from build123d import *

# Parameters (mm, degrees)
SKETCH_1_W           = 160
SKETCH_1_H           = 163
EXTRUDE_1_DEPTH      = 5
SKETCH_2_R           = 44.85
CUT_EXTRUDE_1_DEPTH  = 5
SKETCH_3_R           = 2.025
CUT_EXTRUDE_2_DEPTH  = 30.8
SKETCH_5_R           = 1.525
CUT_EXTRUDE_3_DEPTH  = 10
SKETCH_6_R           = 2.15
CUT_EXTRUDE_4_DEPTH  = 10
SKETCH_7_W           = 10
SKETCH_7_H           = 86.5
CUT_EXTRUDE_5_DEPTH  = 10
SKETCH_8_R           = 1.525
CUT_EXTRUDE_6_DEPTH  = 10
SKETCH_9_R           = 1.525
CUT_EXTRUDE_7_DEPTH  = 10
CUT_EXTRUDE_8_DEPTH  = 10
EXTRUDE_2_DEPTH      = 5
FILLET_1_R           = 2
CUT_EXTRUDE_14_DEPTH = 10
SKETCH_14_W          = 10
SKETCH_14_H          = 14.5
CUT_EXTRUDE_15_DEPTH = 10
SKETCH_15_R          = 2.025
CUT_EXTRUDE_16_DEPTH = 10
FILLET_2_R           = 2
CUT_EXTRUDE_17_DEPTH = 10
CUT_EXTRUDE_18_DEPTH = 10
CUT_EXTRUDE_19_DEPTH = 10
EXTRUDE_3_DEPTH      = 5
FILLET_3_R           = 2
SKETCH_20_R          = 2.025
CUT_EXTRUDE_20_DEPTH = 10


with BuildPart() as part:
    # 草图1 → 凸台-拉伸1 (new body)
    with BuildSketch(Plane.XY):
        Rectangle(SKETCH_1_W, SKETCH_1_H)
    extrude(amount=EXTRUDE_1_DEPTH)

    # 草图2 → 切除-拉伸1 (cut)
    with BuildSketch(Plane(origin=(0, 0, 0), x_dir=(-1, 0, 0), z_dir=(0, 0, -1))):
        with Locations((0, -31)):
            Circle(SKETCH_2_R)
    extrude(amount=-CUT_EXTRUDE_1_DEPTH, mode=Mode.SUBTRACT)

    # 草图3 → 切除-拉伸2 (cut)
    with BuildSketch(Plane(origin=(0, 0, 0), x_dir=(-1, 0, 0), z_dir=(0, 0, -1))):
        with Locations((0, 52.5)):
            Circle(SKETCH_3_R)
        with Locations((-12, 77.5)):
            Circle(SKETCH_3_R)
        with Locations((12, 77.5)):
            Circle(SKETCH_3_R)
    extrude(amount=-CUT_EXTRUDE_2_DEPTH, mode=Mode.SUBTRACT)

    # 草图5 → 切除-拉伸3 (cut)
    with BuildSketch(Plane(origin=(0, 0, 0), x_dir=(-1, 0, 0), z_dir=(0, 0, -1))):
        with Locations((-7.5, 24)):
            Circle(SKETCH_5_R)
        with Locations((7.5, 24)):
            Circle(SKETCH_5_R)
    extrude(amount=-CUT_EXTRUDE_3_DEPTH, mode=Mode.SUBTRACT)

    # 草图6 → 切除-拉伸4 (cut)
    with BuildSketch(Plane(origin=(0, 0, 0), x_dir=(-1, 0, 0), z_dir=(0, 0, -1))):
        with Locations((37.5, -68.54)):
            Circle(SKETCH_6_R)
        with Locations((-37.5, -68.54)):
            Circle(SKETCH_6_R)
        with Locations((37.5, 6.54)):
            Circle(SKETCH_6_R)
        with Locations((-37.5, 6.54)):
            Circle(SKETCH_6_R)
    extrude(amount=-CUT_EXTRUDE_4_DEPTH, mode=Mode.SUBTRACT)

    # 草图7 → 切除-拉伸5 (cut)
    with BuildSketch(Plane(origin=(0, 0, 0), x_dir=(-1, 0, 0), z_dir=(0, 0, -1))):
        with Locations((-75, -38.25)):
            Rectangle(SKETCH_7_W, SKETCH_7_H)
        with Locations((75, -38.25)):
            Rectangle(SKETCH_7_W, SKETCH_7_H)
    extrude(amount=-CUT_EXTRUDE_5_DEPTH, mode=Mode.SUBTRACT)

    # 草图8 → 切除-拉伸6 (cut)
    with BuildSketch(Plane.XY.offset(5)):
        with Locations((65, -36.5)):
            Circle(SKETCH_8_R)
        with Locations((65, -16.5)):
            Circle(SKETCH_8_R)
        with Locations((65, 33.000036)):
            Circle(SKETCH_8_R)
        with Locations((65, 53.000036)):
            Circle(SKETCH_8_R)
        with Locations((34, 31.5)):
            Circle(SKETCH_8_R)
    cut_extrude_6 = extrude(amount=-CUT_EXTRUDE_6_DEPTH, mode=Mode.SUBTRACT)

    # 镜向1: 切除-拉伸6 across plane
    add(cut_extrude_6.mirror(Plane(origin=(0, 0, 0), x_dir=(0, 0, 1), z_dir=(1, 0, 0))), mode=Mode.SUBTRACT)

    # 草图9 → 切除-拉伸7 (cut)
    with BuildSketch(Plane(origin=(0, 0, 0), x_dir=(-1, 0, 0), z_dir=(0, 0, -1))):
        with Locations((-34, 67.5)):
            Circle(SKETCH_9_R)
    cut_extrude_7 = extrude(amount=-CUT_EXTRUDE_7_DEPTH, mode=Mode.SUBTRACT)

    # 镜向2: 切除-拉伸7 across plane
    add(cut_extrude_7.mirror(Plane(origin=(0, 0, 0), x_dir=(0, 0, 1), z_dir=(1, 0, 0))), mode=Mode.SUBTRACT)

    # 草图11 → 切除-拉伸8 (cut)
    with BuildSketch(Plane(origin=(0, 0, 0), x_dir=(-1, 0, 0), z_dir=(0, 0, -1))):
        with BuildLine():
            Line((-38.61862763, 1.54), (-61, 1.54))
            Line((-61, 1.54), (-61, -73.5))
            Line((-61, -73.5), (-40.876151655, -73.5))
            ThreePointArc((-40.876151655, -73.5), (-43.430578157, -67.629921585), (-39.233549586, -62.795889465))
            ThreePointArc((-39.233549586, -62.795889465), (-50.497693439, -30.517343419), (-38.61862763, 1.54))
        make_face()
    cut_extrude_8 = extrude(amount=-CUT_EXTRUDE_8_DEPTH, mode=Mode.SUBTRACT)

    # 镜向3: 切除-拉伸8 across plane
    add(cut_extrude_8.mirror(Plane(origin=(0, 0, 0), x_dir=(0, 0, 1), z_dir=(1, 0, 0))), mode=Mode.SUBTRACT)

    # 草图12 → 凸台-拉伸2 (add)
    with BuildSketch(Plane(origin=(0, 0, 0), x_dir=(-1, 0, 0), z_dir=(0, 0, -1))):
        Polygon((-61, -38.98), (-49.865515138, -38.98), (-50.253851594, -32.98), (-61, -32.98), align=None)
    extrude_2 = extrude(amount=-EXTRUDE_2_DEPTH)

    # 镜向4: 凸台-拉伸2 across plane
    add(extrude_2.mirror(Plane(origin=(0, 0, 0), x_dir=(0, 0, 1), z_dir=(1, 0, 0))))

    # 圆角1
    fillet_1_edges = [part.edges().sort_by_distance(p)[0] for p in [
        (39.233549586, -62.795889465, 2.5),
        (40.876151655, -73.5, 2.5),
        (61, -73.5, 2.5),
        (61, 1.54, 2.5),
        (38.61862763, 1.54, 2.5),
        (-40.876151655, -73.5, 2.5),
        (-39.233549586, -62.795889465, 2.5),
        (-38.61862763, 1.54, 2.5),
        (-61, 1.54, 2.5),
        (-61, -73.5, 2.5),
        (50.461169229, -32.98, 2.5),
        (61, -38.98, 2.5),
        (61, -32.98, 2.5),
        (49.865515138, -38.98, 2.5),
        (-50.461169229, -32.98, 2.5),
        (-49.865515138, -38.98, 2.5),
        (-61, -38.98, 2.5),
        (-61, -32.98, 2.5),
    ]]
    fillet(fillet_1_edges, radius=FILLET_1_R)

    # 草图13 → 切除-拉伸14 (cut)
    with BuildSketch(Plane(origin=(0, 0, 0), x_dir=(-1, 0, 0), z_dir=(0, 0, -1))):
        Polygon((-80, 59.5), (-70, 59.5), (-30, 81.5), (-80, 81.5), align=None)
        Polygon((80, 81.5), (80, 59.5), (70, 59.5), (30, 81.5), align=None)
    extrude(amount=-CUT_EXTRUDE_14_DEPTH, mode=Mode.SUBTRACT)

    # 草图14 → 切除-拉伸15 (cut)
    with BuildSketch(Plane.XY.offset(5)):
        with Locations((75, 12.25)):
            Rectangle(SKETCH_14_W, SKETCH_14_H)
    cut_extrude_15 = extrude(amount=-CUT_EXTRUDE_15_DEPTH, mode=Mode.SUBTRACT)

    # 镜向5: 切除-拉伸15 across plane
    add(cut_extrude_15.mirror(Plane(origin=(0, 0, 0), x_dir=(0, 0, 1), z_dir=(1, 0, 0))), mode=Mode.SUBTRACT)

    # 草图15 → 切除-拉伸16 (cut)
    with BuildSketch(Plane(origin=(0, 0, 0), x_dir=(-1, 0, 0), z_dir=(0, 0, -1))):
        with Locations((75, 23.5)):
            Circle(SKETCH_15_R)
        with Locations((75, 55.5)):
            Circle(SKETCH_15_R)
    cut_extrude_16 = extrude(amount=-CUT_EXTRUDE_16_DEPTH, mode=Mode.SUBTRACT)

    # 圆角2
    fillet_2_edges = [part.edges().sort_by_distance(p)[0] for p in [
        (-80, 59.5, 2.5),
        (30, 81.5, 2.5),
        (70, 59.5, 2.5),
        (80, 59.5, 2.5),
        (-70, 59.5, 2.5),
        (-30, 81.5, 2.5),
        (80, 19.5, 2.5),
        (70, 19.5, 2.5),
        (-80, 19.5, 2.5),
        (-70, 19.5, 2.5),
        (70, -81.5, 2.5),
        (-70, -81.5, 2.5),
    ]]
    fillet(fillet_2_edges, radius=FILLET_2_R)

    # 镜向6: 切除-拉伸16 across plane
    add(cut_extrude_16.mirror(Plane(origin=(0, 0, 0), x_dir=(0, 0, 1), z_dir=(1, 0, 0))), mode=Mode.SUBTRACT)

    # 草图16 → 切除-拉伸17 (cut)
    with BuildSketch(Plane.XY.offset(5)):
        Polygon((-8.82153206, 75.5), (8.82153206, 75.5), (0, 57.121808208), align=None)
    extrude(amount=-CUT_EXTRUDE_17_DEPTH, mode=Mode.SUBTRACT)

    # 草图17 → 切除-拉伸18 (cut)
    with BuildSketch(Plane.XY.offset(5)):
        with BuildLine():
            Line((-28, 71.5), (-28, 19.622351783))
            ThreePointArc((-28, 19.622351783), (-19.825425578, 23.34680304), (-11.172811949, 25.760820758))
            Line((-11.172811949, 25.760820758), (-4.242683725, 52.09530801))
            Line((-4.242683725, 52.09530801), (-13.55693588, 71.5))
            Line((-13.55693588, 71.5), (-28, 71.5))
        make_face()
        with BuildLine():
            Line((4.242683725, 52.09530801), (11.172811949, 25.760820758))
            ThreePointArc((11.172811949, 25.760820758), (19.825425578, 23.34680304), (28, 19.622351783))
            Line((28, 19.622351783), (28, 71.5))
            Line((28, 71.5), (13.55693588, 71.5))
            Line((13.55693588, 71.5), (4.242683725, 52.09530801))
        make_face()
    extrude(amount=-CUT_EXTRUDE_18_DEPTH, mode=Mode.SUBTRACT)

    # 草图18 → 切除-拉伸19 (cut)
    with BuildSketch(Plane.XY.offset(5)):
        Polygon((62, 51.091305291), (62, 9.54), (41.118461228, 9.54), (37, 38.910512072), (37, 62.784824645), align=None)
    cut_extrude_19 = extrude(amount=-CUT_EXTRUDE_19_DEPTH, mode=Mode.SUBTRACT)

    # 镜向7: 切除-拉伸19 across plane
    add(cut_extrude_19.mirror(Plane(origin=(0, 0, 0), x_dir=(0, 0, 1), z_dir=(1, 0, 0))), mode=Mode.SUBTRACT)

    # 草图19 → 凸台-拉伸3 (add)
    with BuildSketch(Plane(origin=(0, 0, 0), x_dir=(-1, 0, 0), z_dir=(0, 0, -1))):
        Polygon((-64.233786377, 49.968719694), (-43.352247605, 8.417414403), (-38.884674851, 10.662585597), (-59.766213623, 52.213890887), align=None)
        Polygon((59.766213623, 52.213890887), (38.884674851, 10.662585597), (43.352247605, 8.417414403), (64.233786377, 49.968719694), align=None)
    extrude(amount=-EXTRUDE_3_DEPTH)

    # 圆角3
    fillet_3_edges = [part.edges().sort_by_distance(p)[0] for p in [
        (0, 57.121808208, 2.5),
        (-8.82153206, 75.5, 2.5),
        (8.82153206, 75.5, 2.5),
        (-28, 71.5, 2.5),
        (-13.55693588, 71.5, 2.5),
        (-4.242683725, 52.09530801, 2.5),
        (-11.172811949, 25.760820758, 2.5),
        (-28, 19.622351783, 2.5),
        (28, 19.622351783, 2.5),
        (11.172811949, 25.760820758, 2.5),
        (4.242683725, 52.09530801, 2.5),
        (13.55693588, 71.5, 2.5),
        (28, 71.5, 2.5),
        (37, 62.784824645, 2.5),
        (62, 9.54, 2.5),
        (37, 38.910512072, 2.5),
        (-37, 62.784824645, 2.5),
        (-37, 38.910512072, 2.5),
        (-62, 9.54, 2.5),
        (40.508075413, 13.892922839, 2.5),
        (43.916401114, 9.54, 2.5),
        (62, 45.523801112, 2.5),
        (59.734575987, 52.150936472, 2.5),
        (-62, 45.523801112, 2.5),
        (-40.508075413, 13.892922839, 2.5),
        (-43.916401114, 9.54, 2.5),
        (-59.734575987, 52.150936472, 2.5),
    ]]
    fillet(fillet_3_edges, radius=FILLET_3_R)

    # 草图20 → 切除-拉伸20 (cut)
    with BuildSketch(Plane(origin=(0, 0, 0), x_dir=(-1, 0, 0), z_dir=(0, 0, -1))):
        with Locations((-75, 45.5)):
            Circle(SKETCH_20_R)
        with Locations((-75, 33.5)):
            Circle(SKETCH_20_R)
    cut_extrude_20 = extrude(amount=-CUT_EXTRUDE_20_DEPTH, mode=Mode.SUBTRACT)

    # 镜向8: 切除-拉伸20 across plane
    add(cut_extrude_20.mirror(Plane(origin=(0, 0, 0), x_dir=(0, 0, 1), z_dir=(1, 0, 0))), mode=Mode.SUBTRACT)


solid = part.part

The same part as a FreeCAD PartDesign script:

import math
import FreeCAD as App
import Part
import Sketcher
from FreeCAD import Vector
Q = App.Units.Quantity


def edges_at(feature, points):
    """Names of the edges that pass closest to the given points."""
    edges = feature.Shape.Edges
    near = lambda p: min(range(len(edges)), key=lambda i: edges[i].distToShape(Part.Vertex(*p))[0])
    return sorted({f"Edge{near(p) + 1}" for p in points})


def add_polygon(sketch, points):
    """Adds a closed chain of lines whose ends are joined by coincident constraints."""
    first, n = sketch.GeometryCount, len(points)
    for a, b in zip(points, points[1:] + points[:1]):
        sketch.addGeometry(Part.LineSegment(App.Vector(*a, 0), App.Vector(*b, 0)), False)
    for i in range(n):
        sketch.addConstraint(Sketcher.Constraint("Coincident", first + i, 2, first + (i + 1) % n, 1))

doc = App.newDocument("Part")
body = doc.addObject("PartDesign::Body", "Body")

# Sketch on XY plane
sketch1 = doc.addObject("Sketcher::SketchObject", "Sketch")
body.addObject(sketch1)
sketch1.AttachmentSupport = (doc.XY_Plane, [""])
sketch1.MapMode = "FlatFace"
add_polygon(sketch1, [(-80, 82), (-80, -82), (80, -82), (80, 82)])  # lines 0-3
sketch1.addConstraint(Sketcher.Constraint("Vertical", 0))
sketch1.addConstraint(Sketcher.Constraint("Horizontal", 1))
sketch1.addConstraint(Sketcher.Constraint("Vertical", 2))
sketch1.addConstraint(Sketcher.Constraint("Horizontal", 3))
sketch1.addConstraint(Sketcher.Constraint("Symmetric", 0, 2, 2, 2, -1, 1))
sketch1.addConstraint(Sketcher.Constraint("DistanceX", 1, 1, 1, 2, Q("160 mm")))
sketch1.addConstraint(Sketcher.Constraint("DistanceY", 0, 2, 0, 1, Q("163 mm")))
pad1 = doc.addObject("PartDesign::Pad", "Pad")
body.addObject(pad1)
pad1.Profile = sketch1
pad1.Length = 5

# Sketch on XY plane
sketch2 = doc.addObject("Sketcher::SketchObject", "Sketch001")
body.addObject(sketch2)
sketch2.AttachmentSupport = (doc.XY_Plane, [""])
sketch2.MapMode = "FlatFace"
sketch2.addGeometry(Part.Circle(Vector(0, -31, 0), Vector(0, 0, 1), 45), False)
sketch2.addConstraint(Sketcher.Constraint("PointOnObject", 0, 3, -2))
sketch2.addConstraint(Sketcher.Constraint("Diameter", 0, Q("89.7 mm")))
sketch2.addConstraint(Sketcher.Constraint("DistanceY", 0, 3, -1, 1, Q("31 mm")))
pocket1 = doc.addObject("PartDesign::Pocket", "Pocket")
body.addObject(pocket1)
pocket1.Profile = sketch2
pocket1.Length = 5
pocket1.Reversed = True

# Sketch on XY plane
sketch3 = doc.addObject("Sketcher::SketchObject", "Sketch002")
body.addObject(sketch3)
sketch3.AttachmentSupport = (doc.XY_Plane, [""])
sketch3.MapMode = "FlatFace"
sketch3.addGeometry(Part.Circle(Vector(0, 52.5, 0), Vector(0, 0, 1), 2), False)
sketch3.addGeometry(Part.Circle(Vector(12, 77.5, 0), Vector(0, 0, 1), 2), False)
sketch3.addGeometry(Part.Circle(Vector(-12, 77.5, 0), Vector(0, 0, 1), 2), False)
sketch3.addConstraint(Sketcher.Constraint("Equal", 0, 1))
sketch3.addConstraint(Sketcher.Constraint("Equal", 1, 2))
sketch3.addConstraint(Sketcher.Constraint("Symmetric", 1, 3, 2, 3, -2))
sketch3.addConstraint(Sketcher.Constraint("PointOnObject", 0, 3, -2))
sketch3.addConstraint(Sketcher.Constraint("Diameter", 0, Q("4.05 mm")))
sketch3.addConstraint(Sketcher.Constraint("DistanceX", -1, 1, 1, 3, Q("12 mm")))
sketch3.addConstraint(Sketcher.Constraint("DistanceY", 0, 3, 1, 3, Q("25 mm")))
sketch3.addConstraint(Sketcher.Constraint("DistanceY", -1, 1, 0, 3, Q("52.5 mm")))
pocket2 = doc.addObject("PartDesign::Pocket", "Pocket001")
body.addObject(pocket2)
pocket2.Profile = sketch3
pocket2.Length = 30.8
pocket2.Reversed = True

# Sketch on XY plane
sketch4 = doc.addObject("Sketcher::SketchObject", "Sketch003")
body.addObject(sketch4)
sketch4.AttachmentSupport = (doc.XY_Plane, [""])
sketch4.MapMode = "FlatFace"
sketch4.addGeometry(Part.Circle(Vector(7.5, 24, 0), Vector(0, 0, 1), 1.5), False)
sketch4.addGeometry(Part.Circle(Vector(-7.5, 24, 0), Vector(0, 0, 1), 1.5), False)
sketch4.addConstraint(Sketcher.Constraint("Equal", 0, 1))
sketch4.addConstraint(Sketcher.Constraint("Symmetric", 0, 3, 1, 3, -2))
sketch4.addConstraint(Sketcher.Constraint("Diameter", 0, Q("3.05 mm")))
sketch4.addConstraint(Sketcher.Constraint("DistanceY", -1, 1, 0, 3, Q("24 mm")))
sketch4.addConstraint(Sketcher.Constraint("DistanceX", 1, 3, 0, 3, Q("15 mm")))
pocket3 = doc.addObject("PartDesign::Pocket", "Pocket002")
body.addObject(pocket3)
pocket3.Profile = sketch4
pocket3.Length = 10
pocket3.Reversed = True

# Sketch on XY plane
sketch5 = doc.addObject("Sketcher::SketchObject", "Sketch004")
body.addObject(sketch5)
sketch5.AttachmentSupport = (doc.XY_Plane, [""])
sketch5.MapMode = "FlatFace"
sketch5.addGeometry(Part.Circle(Vector(-37.5, -68.5, 0), Vector(0, 0, 1), 2.1), False)
sketch5.addGeometry(Part.Circle(Vector(37.5, -68.5, 0), Vector(0, 0, 1), 2.1), False)
sketch5.addGeometry(Part.Circle(Vector(-37.5, 6.5, 0), Vector(0, 0, 1), 2.1), False)
sketch5.addGeometry(Part.Circle(Vector(37.5, 6.5, 0), Vector(0, 0, 1), 2.1), False)
sketch5.addConstraint(Sketcher.Constraint("Equal", 0, 1))
sketch5.addConstraint(Sketcher.Constraint("Equal", 1, 2))
sketch5.addConstraint(Sketcher.Constraint("Equal", 2, 3))
sketch5.addConstraint(Sketcher.Constraint("Symmetric", 0, 3, 1, 3, -2))
sketch5.addConstraint(Sketcher.Constraint("Symmetric", 2, 3, 3, 3, -2))
sketch5.addConstraint(Sketcher.Constraint("Vertical", 0, 3, 2, 3))
sketch5.addConstraint(Sketcher.Constraint("Diameter", 0, Q("4.3 mm")))
sketch5.addConstraint(Sketcher.Constraint("DistanceX", 0, 3, 1, 3, Q("75 mm")))
sketch5.addConstraint(Sketcher.Constraint("DistanceY", 0, 3, -1, 1, Q("68.54 mm")))
sketch5.addConstraint(Sketcher.Constraint("DistanceY", -1, 1, 2, 3, Q("6.54 mm")))
pocket4 = doc.addObject("PartDesign::Pocket", "Pocket003")
body.addObject(pocket4)
pocket4.Profile = sketch5
pocket4.Length = 10
pocket4.Reversed = True

# Sketch on XY plane
sketch6 = doc.addObject("Sketcher::SketchObject", "Sketch005")
body.addObject(sketch6)
sketch6.AttachmentSupport = (doc.XY_Plane, [""])
sketch6.MapMode = "FlatFace"
add_polygon(sketch6, [(80, 5), (80, -82), (70, -82), (70, 5)])  # lines 0-3
add_polygon(sketch6, [(-70, 5), (-70, -82), (-80, -82), (-80, 5)])  # lines 4-7
sketch6.addConstraint(Sketcher.Constraint("Vertical", 0))
sketch6.addConstraint(Sketcher.Constraint("Horizontal", 1))
sketch6.addConstraint(Sketcher.Constraint("Vertical", 2))
sketch6.addConstraint(Sketcher.Constraint("Horizontal", 3))
sketch6.addConstraint(Sketcher.Constraint("Vertical", 4))
sketch6.addConstraint(Sketcher.Constraint("Horizontal", 5))
sketch6.addConstraint(Sketcher.Constraint("Vertical", 6))
sketch6.addConstraint(Sketcher.Constraint("Horizontal", 7))
sketch6.addConstraint(Sketcher.Constraint("Symmetric", 1, 2, 4, 2, -2))
sketch6.addConstraint(Sketcher.Constraint("Symmetric", 3, 2, 6, 2, -2))
sketch6.addConstraint(Sketcher.Constraint("DistanceX", 1, 2, 1, 1, Q("10 mm")))
sketch6.addConstraint(Sketcher.Constraint("DistanceY", 0, 2, 0, 1, Q("86.5 mm")))
sketch6.addConstraint(Sketcher.Constraint("DistanceX", -1, 1, 0, 2, Q("80 mm")))
sketch6.addConstraint(Sketcher.Constraint("DistanceY", -1, 1, 2, 2, Q("5 mm")))
pocket5 = doc.addObject("PartDesign::Pocket", "Pocket004")
body.addObject(pocket5)
pocket5.Profile = sketch6
pocket5.Length = 10
pocket5.Reversed = True

# Sketch on XY plane
sketch7 = doc.addObject("Sketcher::SketchObject", "Sketch006")
body.addObject(sketch7)
sketch7.AttachmentSupport = (doc.XY_Plane, [""])
sketch7.MapMode = "FlatFace"
sketch7.AttachmentOffset = App.Placement(Vector(0, 0, 5), App.Rotation())
sketch7.addGeometry(Part.Circle(Vector(65, -36.5, 0), Vector(0, 0, 1), 1.525), False)
sketch7.addGeometry(Part.Circle(Vector(65, -16.5, 0), Vector(0, 0, 1), 1.525), False)
sketch7.addGeometry(Part.Circle(Vector(65, 33.000036, 0), Vector(0, 0, 1), 1.525), False)
sketch7.addGeometry(Part.Circle(Vector(65, 53.000036, 0), Vector(0, 0, 1), 1.525), False)
sketch7.addGeometry(Part.Circle(Vector(34, 31.5, 0), Vector(0, 0, 1), 1.525), False)
sketch7.addConstraint(Sketcher.Constraint("Equal", 0, 1))
sketch7.addConstraint(Sketcher.Constraint("Equal", 1, 2))
sketch7.addConstraint(Sketcher.Constraint("Equal", 2, 3))
sketch7.addConstraint(Sketcher.Constraint("Equal", 3, 4))
sketch7.addConstraint(Sketcher.Constraint("Vertical", 0, 3, 1, 3))
sketch7.addConstraint(Sketcher.Constraint("Vertical", 1, 3, 2, 3))
sketch7.addConstraint(Sketcher.Constraint("Vertical", 2, 3, 3, 3))
sketch7.addConstraint(Sketcher.Constraint("Diameter", 0, Q("3.05 mm")))
sketch7.addConstraint(Sketcher.Constraint("DistanceX", -1, 1, 0, 3, Q("65 mm")))
sketch7.addConstraint(Sketcher.Constraint("DistanceX", -1, 1, 4, 3, Q("34 mm")))
sketch7.addConstraint(Sketcher.Constraint("DistanceY", 0, 3, 1, 3, Q("20 mm")))
sketch7.addConstraint(Sketcher.Constraint("DistanceY", 2, 3, 3, 3, Q("20 mm")))
sketch7.addConstraint(Sketcher.Constraint("DistanceY", 1, 3, 4, 3, Q("48 mm")))
sketch7.addConstraint(Sketcher.Constraint("DistanceY", 0, 3, -1, 1, Q("36.5 mm")))
sketch7.addConstraint(Sketcher.Constraint("DistanceY", -1, 1, 2, 3, Q("33.000036 mm")))
pocket6 = doc.addObject("PartDesign::Pocket", "Pocket005")
body.addObject(pocket6)
pocket6.Profile = sketch7
pocket6.Length = 10
doc.recompute()

mirrored = doc.addObject("PartDesign::Mirrored", "Mirrored")
body.addObject(mirrored)
mirrored.Originals = [pocket6]
mirrored.MirrorPlane = (doc.YZ_Plane, [""])
body.Tip = mirrored

# Sketch on XY plane
sketch8 = doc.addObject("Sketcher::SketchObject", "Sketch007")
body.addObject(sketch8)
sketch8.AttachmentSupport = (doc.XY_Plane, [""])
sketch8.MapMode = "FlatFace"
sketch8.addGeometry(Part.Circle(Vector(34, 67.5, 0), Vector(0, 0, 1), 1.5), False)
sketch8.addConstraint(Sketcher.Constraint("Diameter", 0, Q("3.05 mm")))
sketch8.addConstraint(Sketcher.Constraint("DistanceX", -1, 1, 0, 3, Q("34 mm")))
sketch8.addConstraint(Sketcher.Constraint("DistanceY", -1, 1, 0, 3, Q("67.5 mm")))
pocket7 = doc.addObject("PartDesign::Pocket", "Pocket006")
body.addObject(pocket7)
pocket7.Profile = sketch8
pocket7.Length = 10
pocket7.Reversed = True
doc.recompute()

mirrored2 = doc.addObject("PartDesign::Mirrored", "Mirrored001")
body.addObject(mirrored2)
mirrored2.Originals = [pocket7]
mirrored2.MirrorPlane = (doc.YZ_Plane, [""])
body.Tip = mirrored2

# Sketch on XY plane
sketch9 = doc.addObject("Sketcher::SketchObject", "Sketch008")
body.addObject(sketch9)
sketch9.AttachmentSupport = (doc.XY_Plane, [""])
sketch9.MapMode = "FlatFace"
sketch9.addGeometry(Part.LineSegment(Vector(39, 2, 0), Vector(61, 2, 0)), False)
sketch9.addGeometry(Part.LineSegment(Vector(61, 2, 0), Vector(61, -74, 0)), False)
sketch9.addGeometry(Part.LineSegment(Vector(61, -74, 0), Vector(41, -74, 0)), False)
sketch9.addGeometry(Part.ArcOfCircle(Part.Circle(Vector(37, -69, 0), Vector(0, 0, 1), 6), math.radians(-56), math.radians(73)), False)
sketch9.addGeometry(Part.ArcOfCircle(Part.Circle(Vector(0, -31, 0), Vector(0, 0, 1), 50), math.radians(-39), math.radians(40)), False)
sketch9.addConstraint(Sketcher.Constraint("Coincident", 0, 2, 1, 1))
sketch9.addConstraint(Sketcher.Constraint("Coincident", 1, 2, 2, 1))
sketch9.addConstraint(Sketcher.Constraint("Coincident", 2, 2, 3, 1))
sketch9.addConstraint(Sketcher.Constraint("Coincident", 3, 2, 4, 1))
sketch9.addConstraint(Sketcher.Constraint("Coincident", 4, 2, 0, 1))
sketch9.addConstraint(Sketcher.Constraint("Horizontal", 0))
sketch9.addConstraint(Sketcher.Constraint("Vertical", 1))
sketch9.addConstraint(Sketcher.Constraint("Horizontal", 2))
sketch9.addConstraint(Sketcher.Constraint("PointOnObject", 4, 3, -2))
sketch9.addConstraint(Sketcher.Constraint("Radius", 3, Q("6 mm")))
sketch9.addConstraint(Sketcher.Constraint("Radius", 4, Q("50.5 mm")))
sketch9.addConstraint(Sketcher.Constraint("DistanceY", 4, 3, -1, 1, Q("31 mm")))
sketch9.addConstraint(Sketcher.Constraint("DistanceX", -1, 1, 0, 2, Q("61 mm")))
sketch9.addConstraint(Sketcher.Constraint("DistanceY", 1, 2, 1, 1, Q("75.04 mm")))
sketch9.addConstraint(Sketcher.Constraint("DistanceX", -1, 1, 3, 3, Q("37.5 mm")))
sketch9.addConstraint(Sketcher.Constraint("DistanceY", 1, 2, -1, 1, Q("73.5 mm")))
sketch9.addConstraint(Sketcher.Constraint("DistanceY", 3, 3, -1, 1, Q("68.54 mm")))
pocket8 = doc.addObject("PartDesign::Pocket", "Pocket007")
body.addObject(pocket8)
pocket8.Profile = sketch9
pocket8.Length = 10
pocket8.Reversed = True
doc.recompute()

mirrored3 = doc.addObject("PartDesign::Mirrored", "Mirrored002")
body.addObject(mirrored3)
mirrored3.Originals = [pocket8]
mirrored3.MirrorPlane = (doc.YZ_Plane, [""])
body.Tip = mirrored3

# Sketch on XY plane
sketch10 = doc.addObject("Sketcher::SketchObject", "Sketch009")
body.addObject(sketch10)
sketch10.AttachmentSupport = (doc.XY_Plane, [""])
sketch10.MapMode = "FlatFace"
add_polygon(sketch10, [(61, -39), (50, -39), (50, -33), (61, -33)])  # lines 0-3
sketch10.addConstraint(Sketcher.Constraint("Horizontal", 0))
sketch10.addConstraint(Sketcher.Constraint("Horizontal", 2))
sketch10.addConstraint(Sketcher.Constraint("Vertical", 3))
sketch10.addConstraint(Sketcher.Constraint("DistanceY", 3, 2, 3, 1, Q("6 mm")))
sketch10.addConstraint(Sketcher.Constraint("DistanceX", -1, 1, 2, 2, Q("61 mm")))
sketch10.addConstraint(Sketcher.Constraint("DistanceY", 0, 2, -1, 1, Q("38.98 mm")))
sketch10.addConstraint(Sketcher.Constraint("DistanceX", 2, 1, 2, 2, Q("10.746148 mm")))
sketch10.addConstraint(Sketcher.Constraint("DistanceX", 0, 2, 0, 1, Q("11.134485 mm")))
pad2 = doc.addObject("PartDesign::Pad", "Pad001")
body.addObject(pad2)
pad2.Profile = sketch10
pad2.Length = 5
doc.recompute()

mirrored4 = doc.addObject("PartDesign::Mirrored", "Mirrored003")
body.addObject(mirrored4)
mirrored4.Originals = [pad2]
mirrored4.MirrorPlane = (doc.YZ_Plane, [""])
body.Tip = mirrored4
doc.recompute()

fillet = doc.addObject("PartDesign::Fillet", "Fillet")
body.addObject(fillet)
fillet.Base = (mirrored4, edges_at(mirrored4, [
    (39.234, -62.796, 2.5),
    (40.876, -73.5, 2.5),
    (61, -73.5, 2.5),
    (61, 1.54, 2.5),
    (38.619, 1.54, 2.5),
    (-40.876, -73.5, 2.5),
    (-39.234, -62.796, 2.5),
    (-38.619, 1.54, 2.5),
    (-61, 1.54, 2.5),
    (-61, -73.5, 2.5),
    (50.461, -32.98, 2.5),
    (61, -38.98, 2.5),
    (61, -32.98, 2.5),
    (49.866, -38.98, 2.5),
    (-50.461, -32.98, 2.5),
    (-49.866, -38.98, 2.5),
    (-61, -38.98, 2.5),
    (-61, -32.98, 2.5),
]))
fillet.Radius = 2

# Sketch on XY plane
sketch11 = doc.addObject("Sketcher::SketchObject", "Sketch010")
body.addObject(sketch11)
sketch11.AttachmentSupport = (doc.XY_Plane, [""])
sketch11.MapMode = "FlatFace"
add_polygon(sketch11, [(80, 60), (70, 60), (30, 82), (80, 82)])  # lines 0-3
add_polygon(sketch11, [(-80, 60), (-80, 82), (-30, 82), (-70, 60)])  # lines 4-7
sketch11.addConstraint(Sketcher.Constraint("Horizontal", 0))
sketch11.addConstraint(Sketcher.Constraint("Horizontal", 2))
sketch11.addConstraint(Sketcher.Constraint("Vertical", 3))
sketch11.addConstraint(Sketcher.Constraint("Vertical", 4))
sketch11.addConstraint(Sketcher.Constraint("Horizontal", 5))
sketch11.addConstraint(Sketcher.Constraint("Horizontal", 7))
sketch11.addConstraint(Sketcher.Constraint("Symmetric", 2, 2, 4, 2, -2))
sketch11.addConstraint(Sketcher.Constraint("Symmetric", 0, 2, 6, 2, -2))
sketch11.addConstraint(Sketcher.Constraint("Equal", 2, 5))
sketch11.addConstraint(Sketcher.Constraint("DistanceX", 0, 2, 0, 1, Q("10 mm")))
sketch11.addConstraint(Sketcher.Constraint("DistanceX", 2, 1, 2, 2, Q("50 mm")))
sketch11.addConstraint(Sketcher.Constraint("DistanceY", 3, 2, 3, 1, Q("22 mm")))
sketch11.addConstraint(Sketcher.Constraint("DistanceX", -1, 1, 0, 2, Q("70 mm")))
sketch11.addConstraint(Sketcher.Constraint("DistanceY", -1, 1, 0, 2, Q("59.5 mm")))
pocket9 = doc.addObject("PartDesign::Pocket", "Pocket008")
body.addObject(pocket9)
pocket9.Profile = sketch11
pocket9.Length = 10
pocket9.Reversed = True

# Sketch on XY plane
sketch12 = doc.addObject("Sketcher::SketchObject", "Sketch011")
body.addObject(sketch12)
sketch12.AttachmentSupport = (doc.XY_Plane, [""])
sketch12.MapMode = "FlatFace"
sketch12.AttachmentOffset = App.Placement(Vector(0, 0, 5), App.Rotation())
add_polygon(sketch12, [(70, 20), (70, 5), (80, 5), (80, 20)])  # lines 0-3
sketch12.addConstraint(Sketcher.Constraint("Vertical", 0))
sketch12.addConstraint(Sketcher.Constraint("Horizontal", 1))
sketch12.addConstraint(Sketcher.Constraint("Vertical", 2))
sketch12.addConstraint(Sketcher.Constraint("Horizontal", 3))
sketch12.addConstraint(Sketcher.Constraint("DistanceX", 1, 1, 1, 2, Q("10 mm")))
sketch12.addConstraint(Sketcher.Constraint("DistanceY", 0, 2, 0, 1, Q("14.5 mm")))
sketch12.addConstraint(Sketcher.Constraint("DistanceX", -1, 1, 0, 2, Q("70 mm")))
sketch12.addConstraint(Sketcher.Constraint("DistanceY", -1, 1, 0, 2, Q("5 mm")))
pocket10 = doc.addObject("PartDesign::Pocket", "Pocket009")
body.addObject(pocket10)
pocket10.Profile = sketch12
pocket10.Length = 10
doc.recompute()

mirrored5 = doc.addObject("PartDesign::Mirrored", "Mirrored004")
body.addObject(mirrored5)
mirrored5.Originals = [pocket10]
mirrored5.MirrorPlane = (doc.YZ_Plane, [""])
body.Tip = mirrored5

# Sketch on XY plane
sketch13 = doc.addObject("Sketcher::SketchObject", "Sketch012")
body.addObject(sketch13)
sketch13.AttachmentSupport = (doc.XY_Plane, [""])
sketch13.MapMode = "FlatFace"
sketch13.addGeometry(Part.Circle(Vector(-75, 23.5, 0), Vector(0, 0, 1), 2), False)
sketch13.addGeometry(Part.Circle(Vector(-75, 55.5, 0), Vector(0, 0, 1), 2), False)
sketch13.addConstraint(Sketcher.Constraint("Equal", 0, 1))
sketch13.addConstraint(Sketcher.Constraint("Vertical", 0, 3, 1, 3))
sketch13.addConstraint(Sketcher.Constraint("Diameter", 0, Q("4.05 mm")))
sketch13.addConstraint(Sketcher.Constraint("DistanceX", 0, 3, -1, 1, Q("75 mm")))
sketch13.addConstraint(Sketcher.Constraint("DistanceY", 0, 3, 1, 3, Q("32 mm")))
sketch13.addConstraint(Sketcher.Constraint("DistanceY", -1, 1, 0, 3, Q("23.5 mm")))
pocket11 = doc.addObject("PartDesign::Pocket", "Pocket010")
body.addObject(pocket11)
pocket11.Profile = sketch13
pocket11.Length = 10
pocket11.Reversed = True
doc.recompute()

fillet2 = doc.addObject("PartDesign::Fillet", "Fillet001")
body.addObject(fillet2)
fillet2.Base = (pocket11, edges_at(pocket11, [
    (-80, 59.5, 2.5),
    (30, 81.5, 2.5),
    (70, 59.5, 2.5),
    (80, 59.5, 2.5),
    (-70, 59.5, 2.5),
    (-30, 81.5, 2.5),
    (80, 19.5, 2.5),
    (70, 19.5, 2.5),
    (-80, 19.5, 2.5),
    (-70, 19.5, 2.5),
    (70, -81.5, 2.5),
    (-70, -81.5, 2.5),
]))
fillet2.Radius = 2
doc.recompute()

mirrored6 = doc.addObject("PartDesign::Mirrored", "Mirrored005")
body.addObject(mirrored6)
mirrored6.Originals = [pocket11]
mirrored6.MirrorPlane = (doc.YZ_Plane, [""])
body.Tip = mirrored6

# Sketch on XY plane
sketch14 = doc.addObject("Sketcher::SketchObject", "Sketch013")
body.addObject(sketch14)
sketch14.AttachmentSupport = (doc.XY_Plane, [""])
sketch14.MapMode = "FlatFace"
sketch14.AttachmentOffset = App.Placement(Vector(0, 0, 5), App.Rotation())
add_polygon(sketch14, [(9, 76), (-9, 76), (0, 57)])  # lines 0-2
sketch14.addConstraint(Sketcher.Constraint("Horizontal", 0))
sketch14.addConstraint(Sketcher.Constraint("PointOnObject", 1, 2, -2))
sketch14.addConstraint(Sketcher.Constraint("Equal", 1, 2))
sketch14.addConstraint(Sketcher.Constraint("DistanceY", -1, 1, 0, 2, Q("75.5 mm")))
sketch14.addConstraint(Sketcher.Constraint("DistanceX", 0, 2, 0, 1, Q("17.643064 mm")))
sketch14.addConstraint(Sketcher.Constraint("DistanceY", -1, 1, 1, 2, Q("57.121808 mm")))
pocket12 = doc.addObject("PartDesign::Pocket", "Pocket011")
body.addObject(pocket12)
pocket12.Profile = sketch14
pocket12.Length = 10

# Sketch on XY plane
sketch15 = doc.addObject("Sketcher::SketchObject", "Sketch014")
body.addObject(sketch15)
sketch15.AttachmentSupport = (doc.XY_Plane, [""])
sketch15.MapMode = "FlatFace"
sketch15.AttachmentOffset = App.Placement(Vector(0, 0, 5), App.Rotation())
sketch15.addGeometry(Part.LineSegment(Vector(-28, 72, 0), Vector(-28, 20, 0)), False)
sketch15.addGeometry(Part.ArcOfCircle(Part.Circle(Vector(0, -31, 0), Vector(0, 0, 1), 58), math.radians(101.14), math.radians(118.95)), False)
sketch15.addGeometry(Part.LineSegment(Vector(-11, 26, 0), Vector(-4, 52, 0)), False)
sketch15.addGeometry(Part.LineSegment(Vector(-4, 52, 0), Vector(-14, 72, 0)), False)
sketch15.addGeometry(Part.LineSegment(Vector(-14, 72, 0), Vector(-28, 72, 0)), False)
sketch15.addGeometry(Part.LineSegment(Vector(4, 52, 0), Vector(11, 26, 0)), False)
sketch15.addGeometry(Part.ArcOfCircle(Part.Circle(Vector(0, -31, 0), Vector(0, 0, 1), 58), math.radians(61.05), math.radians(78.86)), False)
sketch15.addGeometry(Part.LineSegment(Vector(28, 20, 0), Vector(28, 72, 0)), False)
sketch15.addGeometry(Part.LineSegment(Vector(28, 72, 0), Vector(14, 72, 0)), False)
sketch15.addGeometry(Part.LineSegment(Vector(14, 72, 0), Vector(4, 52, 0)), False)
sketch15.addConstraint(Sketcher.Constraint("Coincident", 0, 2, 1, 2))
sketch15.addConstraint(Sketcher.Constraint("Coincident", 1, 1, 2, 1))
sketch15.addConstraint(Sketcher.Constraint("Coincident", 2, 2, 3, 1))
sketch15.addConstraint(Sketcher.Constraint("Coincident", 3, 2, 4, 1))
sketch15.addConstraint(Sketcher.Constraint("Coincident", 4, 2, 0, 1))
sketch15.addConstraint(Sketcher.Constraint("Coincident", 5, 2, 6, 2))
sketch15.addConstraint(Sketcher.Constraint("Coincident", 6, 1, 7, 1))
sketch15.addConstraint(Sketcher.Constraint("Coincident", 7, 2, 8, 1))
sketch15.addConstraint(Sketcher.Constraint("Coincident", 8, 2, 9, 1))
sketch15.addConstraint(Sketcher.Constraint("Coincident", 9, 2, 5, 1))
sketch15.addConstraint(Sketcher.Constraint("Vertical", 0))
sketch15.addConstraint(Sketcher.Constraint("Horizontal", 4))
sketch15.addConstraint(Sketcher.Constraint("Vertical", 7))
sketch15.addConstraint(Sketcher.Constraint("Horizontal", 8))
sketch15.addConstraint(Sketcher.Constraint("Coincident", 6, 3, 1, 3))
sketch15.addConstraint(Sketcher.Constraint("Equal", 1, 6))
sketch15.addConstraint(Sketcher.Constraint("Symmetric", 1, 1, 5, 2, -2))
sketch15.addConstraint(Sketcher.Constraint("Symmetric", 4, 2, 7, 2, -2))
sketch15.addConstraint(Sketcher.Constraint("Symmetric", 2, 2, 9, 2, -2))
sketch15.addConstraint(Sketcher.Constraint("Equal", 4, 8))
sketch15.addConstraint(Sketcher.Constraint("Radius", 1, Q("57.85 mm")))
sketch15.addConstraint(Sketcher.Constraint("DistanceY", 1, 3, -1, 1, Q("31 mm")))
sketch15.addConstraint(Sketcher.Constraint("DistanceX", 0, 2, -1, 1, Q("28 mm")))
sketch15.addConstraint(Sketcher.Constraint("DistanceY", -1, 1, 3, 2, Q("71.5 mm")))
sketch15.addConstraint(Sketcher.Constraint("DistanceX", 4, 2, 4, 1, Q("14.443064 mm")))
sketch15.addConstraint(Sketcher.Constraint("DistanceX", 1, 1, -1, 1, Q("11.172812 mm")))
sketch15.addConstraint(Sketcher.Constraint("DistanceY", -1, 1, 2, 2, Q("52.095308 mm")))
sketch15.addConstraint(Sketcher.Constraint("DistanceX", 1, 1, 2, 2, Q("6.930128 mm")))
pocket13 = doc.addObject("PartDesign::Pocket", "Pocket012")
body.addObject(pocket13)
pocket13.Profile = sketch15
pocket13.Length = 10

# Sketch on XY plane
sketch16 = doc.addObject("Sketcher::SketchObject", "Sketch015")
body.addObject(sketch16)
sketch16.AttachmentSupport = (doc.XY_Plane, [""])
sketch16.MapMode = "FlatFace"
sketch16.AttachmentOffset = App.Placement(Vector(0, 0, 5), App.Rotation())
add_polygon(sketch16, [(62, 10), (62, 51), (37, 63), (37, 39), (41, 10)])  # lines 0-4
sketch16.addConstraint(Sketcher.Constraint("Vertical", 0))
sketch16.addConstraint(Sketcher.Constraint("Vertical", 2))
sketch16.addConstraint(Sketcher.Constraint("Horizontal", 4))
sketch16.addConstraint(Sketcher.Constraint("DistanceX", -1, 1, 0, 2, Q("62 mm")))
sketch16.addConstraint(Sketcher.Constraint("DistanceX", -1, 1, 1, 2, Q("37 mm")))
sketch16.addConstraint(Sketcher.Constraint("DistanceY", -1, 1, 3, 2, Q("9.54 mm")))
sketch16.addConstraint(Sketcher.Constraint("DistanceX", 4, 1, 4, 2, Q("20.881539 mm")))
sketch16.addConstraint(Sketcher.Constraint("Distance", 1, Q("27.599609 mm")))
sketch16.addConstraint(Sketcher.Constraint("Distance", 3, Q("29.657861 mm")))
sketch16.addConstraint(Sketcher.Constraint("DistanceY", 0, 1, 0, 2, Q("41.551305 mm")))
pocket14 = doc.addObject("PartDesign::Pocket", "Pocket013")
body.addObject(pocket14)
pocket14.Profile = sketch16
pocket14.Length = 10
doc.recompute()

mirrored7 = doc.addObject("PartDesign::Mirrored", "Mirrored006")
body.addObject(mirrored7)
mirrored7.Originals = [pocket14]
mirrored7.MirrorPlane = (doc.YZ_Plane, [""])
body.Tip = mirrored7

# Sketch on XY plane
sketch17 = doc.addObject("Sketcher::SketchObject", "Sketch016")
body.addObject(sketch17)
sketch17.AttachmentSupport = (doc.XY_Plane, [""])
sketch17.MapMode = "FlatFace"
add_polygon(sketch17, [(64.2, 50), (43.4, 8.4), (38.9, 10.7), (59.8, 52.2)])  # lines 0-3
add_polygon(sketch17, [(-59.8, 52.2), (-38.9, 10.7), (-43.4, 8.4), (-64.2, 50)])  # lines 4-7
sketch17.addConstraint(Sketcher.Constraint("Symmetric", 1, 2, 4, 2, -2))
sketch17.addConstraint(Sketcher.Constraint("Symmetric", 0, 2, 5, 2, -2))
sketch17.addConstraint(Sketcher.Constraint("Symmetric", 3, 2, 6, 2, -2))
sketch17.addConstraint(Sketcher.Constraint("Symmetric", 2, 2, 7, 2, -2))
sketch17.addConstraint(Sketcher.Constraint("Perpendicular", 0, 1))
sketch17.addConstraint(Sketcher.Constraint("Perpendicular", 1, 2))
sketch17.addConstraint(Sketcher.Constraint("Perpendicular", 2, 3))
sketch17.addConstraint(Sketcher.Constraint("Distance", 1, Q("5 mm")))
sketch17.addConstraint(Sketcher.Constraint("DistanceX", 6, 2, 2, 2, Q("124 mm")))
sketch17.addConstraint(Sketcher.Constraint("Distance", 0, Q("46.503222 mm")))
sketch17.addConstraint(Sketcher.Constraint("DistanceY", -1, 1, 2, 2, Q("52.213891 mm")))
sketch17.addConstraint(Sketcher.Constraint("DistanceY", -1, 1, 3, 2, Q("49.96872 mm")))
pad3 = doc.addObject("PartDesign::Pad", "Pad002")
body.addObject(pad3)
pad3.Profile = sketch17
pad3.Length = 5
doc.recompute()

fillet3 = doc.addObject("PartDesign::Fillet", "Fillet002")
body.addObject(fillet3)
fillet3.Base = (pad3, edges_at(pad3, [
    (0, 57.122, 2.5),
    (-8.822, 75.5, 2.5),
    (8.822, 75.5, 2.5),
    (-28, 71.5, 2.5),
    (-13.557, 71.5, 2.5),
    (-4.243, 52.095, 2.5),
    (-11.173, 25.761, 2.5),
    (-28, 19.622, 2.5),
    (28, 19.622, 2.5),
    (11.173, 25.761, 2.5),
    (4.243, 52.095, 2.5),
    (13.557, 71.5, 2.5),
    (28, 71.5, 2.5),
    (37, 62.785, 2.5),
    (62, 9.54, 2.5),
    (37, 38.911, 2.5),
    (-37, 62.785, 2.5),
    (-37, 38.911, 2.5),
    (-62, 9.54, 2.5),
    (40.508, 13.893, 2.5),
    (43.916, 9.54, 2.5),
    (62, 45.524, 2.5),
    (59.735, 52.151, 2.5),
    (-62, 45.524, 2.5),
    (-40.508, 13.893, 2.5),
    (-43.916, 9.54, 2.5),
    (-59.735, 52.151, 2.5),
]))
fillet3.Radius = 2

# Sketch on XY plane
sketch18 = doc.addObject("Sketcher::SketchObject", "Sketch017")
body.addObject(sketch18)
sketch18.AttachmentSupport = (doc.XY_Plane, [""])
sketch18.MapMode = "FlatFace"
sketch18.addGeometry(Part.Circle(Vector(75, 45.5, 0), Vector(0, 0, 1), 2), False)
sketch18.addGeometry(Part.Circle(Vector(75, 33.5, 0), Vector(0, 0, 1), 2), False)
sketch18.addConstraint(Sketcher.Constraint("Equal", 0, 1))
sketch18.addConstraint(Sketcher.Constraint("Vertical", 0, 3, 1, 3))
sketch18.addConstraint(Sketcher.Constraint("Diameter", 0, Q("4.05 mm")))
sketch18.addConstraint(Sketcher.Constraint("DistanceX", -1, 1, 0, 3, Q("75 mm")))
sketch18.addConstraint(Sketcher.Constraint("DistanceY", 1, 3, 0, 3, Q("12 mm")))
sketch18.addConstraint(Sketcher.Constraint("DistanceY", -1, 1, 0, 3, Q("45.5 mm")))
pocket15 = doc.addObject("PartDesign::Pocket", "Pocket014")
body.addObject(pocket15)
pocket15.Profile = sketch18
pocket15.Length = 10
pocket15.Reversed = True
doc.recompute()

mirrored8 = doc.addObject("PartDesign::Mirrored", "Mirrored007")
body.addObject(mirrored8)
mirrored8.Originals = [pocket15]
mirrored8.MirrorPlane = (doc.YZ_Plane, [""])
body.Tip = mirrored8

doc.recompute()
